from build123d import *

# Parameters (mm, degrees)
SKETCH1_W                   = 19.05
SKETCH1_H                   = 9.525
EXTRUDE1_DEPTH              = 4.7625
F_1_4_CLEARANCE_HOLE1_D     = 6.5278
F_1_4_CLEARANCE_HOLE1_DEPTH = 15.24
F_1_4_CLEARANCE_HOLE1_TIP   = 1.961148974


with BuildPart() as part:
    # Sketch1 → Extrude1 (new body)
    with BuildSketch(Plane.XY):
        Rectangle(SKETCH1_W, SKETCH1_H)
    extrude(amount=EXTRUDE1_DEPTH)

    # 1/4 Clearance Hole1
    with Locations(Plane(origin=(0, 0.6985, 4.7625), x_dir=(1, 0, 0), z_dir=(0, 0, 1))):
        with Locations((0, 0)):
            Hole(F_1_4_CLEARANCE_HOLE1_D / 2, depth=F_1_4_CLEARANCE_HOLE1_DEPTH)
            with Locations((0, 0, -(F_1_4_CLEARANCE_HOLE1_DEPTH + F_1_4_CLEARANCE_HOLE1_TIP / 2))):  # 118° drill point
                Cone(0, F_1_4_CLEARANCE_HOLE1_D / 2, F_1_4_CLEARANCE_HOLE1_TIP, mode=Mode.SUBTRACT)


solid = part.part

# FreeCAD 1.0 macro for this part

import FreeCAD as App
import Part
import Sketcher

V = App.Vector
Q = App.Units.Quantity

doc = App.newDocument("Part")
params = doc.addObject("Spreadsheet::Sheet", "Params")
for row, (alias, value) in enumerate([
    ("sketch1_width", "0.75 in"),
    ("sketch1_height", "0.375 in"),
    ("pad1_length", "0.1875 in"),
    ("sketch2_diameter", "0.257 in"),
    ("hole_diameter", "0.257 in"),
    ("hole_depth", "0.6 in"),
], start=1):
    params.set(f"A{row}", alias)
    params.set(f"B{row}", "=" + value)
    params.setAlias(f"B{row}", alias)

body = doc.addObject("PartDesign::Body", "Body")

# Sketch on XY plane
sketch1 = body.newObject("Sketcher::SketchObject", "Sketch")
sketch1.AttachmentSupport = (doc.getObject("XY_Plane"), [""])
sketch1.MapMode = "FlatFace"
sketch1.addGeometry(Part.LineSegment(V(-10, 5, 0), V(-10, -5, 0)), False)
sketch1.addGeometry(Part.LineSegment(V(-10, -5, 0), V(10, -5, 0)), False)
sketch1.addGeometry(Part.LineSegment(V(10, -5, 0), V(10, 5, 0)), False)
sketch1.addGeometry(Part.LineSegment(V(10, 5, 0), V(-10, 5, 0)), False)
sketch1.addConstraint(Sketcher.Constraint("Coincident", 0, 2, 1, 1))
sketch1.addConstraint(Sketcher.Constraint("Coincident", 1, 2, 2, 1))
sketch1.addConstraint(Sketcher.Constraint("Coincident", 2, 2, 3, 1))
sketch1.addConstraint(Sketcher.Constraint("Coincident", 3, 2, 0, 1))
sketch1.addConstraint(Sketcher.Constraint("Vertical", 0))
sketch1.addConstraint(Sketcher.Constraint("Horizontal", 1))
sketch1.addConstraint(Sketcher.Constraint("Vertical", 2))
sketch1.addConstraint(Sketcher.Constraint("Horizontal", 3))
sketch1.addConstraint(Sketcher.Constraint("Symmetric", 0, 2, 2, 2, -1, 1))
sketch1.addConstraint(Sketcher.Constraint("DistanceX", 1, 1, 1, 2, Q("0.75 in")))
sketch1.addConstraint(Sketcher.Constraint("DistanceY", 0, 2, 0, 1, Q("0.375 in")))
sketch1.setExpression("Constraints[9]", "Params.sketch1_width")
sketch1.setExpression("Constraints[10]", "Params.sketch1_height")
pad1 = body.newObject("PartDesign::Pad", "Pad")
pad1.Profile = sketch1
pad1.setExpression("Length", "Params.pad1_length")

# Sketch on XY plane
sketch2 = body.newObject("Sketcher::SketchObject", "Sketch001")
sketch2.AttachmentSupport = (doc.getObject("XY_Plane"), [""])
sketch2.MapMode = "FlatFace"
sketch2.AttachmentOffset = App.Placement(V(0, 0, 0.1875 * 25.4), App.Rotation())
sketch2.addGeometry(Part.Circle(V(0, 0.7, 0), V(0, 0, 1), 3.3), False)
sketch2.addConstraint(Sketcher.Constraint("PointOnObject", 0, 3, -2))
sketch2.addConstraint(Sketcher.Constraint("Diameter", 0, Q("0.257 in")))
sketch2.addConstraint(Sketcher.Constraint("DistanceY", -1, 1, 0, 3, Q("0.0275 in")))
sketch2.setExpression("Constraints[1]", "Params.sketch2_diameter")
doc.recompute()
hole = body.newObject("PartDesign::Hole", "Hole")
hole.Profile = sketch2
hole.ThreadType = "None"
hole.setExpression("Diameter", "Params.hole_diameter")
hole.DepthType = "Dimension"
hole.setExpression("Depth", "Params.hole_depth")
hole.DrillPoint = "Angled"
hole.DrillPointAngle = 118

doc.recompute()
